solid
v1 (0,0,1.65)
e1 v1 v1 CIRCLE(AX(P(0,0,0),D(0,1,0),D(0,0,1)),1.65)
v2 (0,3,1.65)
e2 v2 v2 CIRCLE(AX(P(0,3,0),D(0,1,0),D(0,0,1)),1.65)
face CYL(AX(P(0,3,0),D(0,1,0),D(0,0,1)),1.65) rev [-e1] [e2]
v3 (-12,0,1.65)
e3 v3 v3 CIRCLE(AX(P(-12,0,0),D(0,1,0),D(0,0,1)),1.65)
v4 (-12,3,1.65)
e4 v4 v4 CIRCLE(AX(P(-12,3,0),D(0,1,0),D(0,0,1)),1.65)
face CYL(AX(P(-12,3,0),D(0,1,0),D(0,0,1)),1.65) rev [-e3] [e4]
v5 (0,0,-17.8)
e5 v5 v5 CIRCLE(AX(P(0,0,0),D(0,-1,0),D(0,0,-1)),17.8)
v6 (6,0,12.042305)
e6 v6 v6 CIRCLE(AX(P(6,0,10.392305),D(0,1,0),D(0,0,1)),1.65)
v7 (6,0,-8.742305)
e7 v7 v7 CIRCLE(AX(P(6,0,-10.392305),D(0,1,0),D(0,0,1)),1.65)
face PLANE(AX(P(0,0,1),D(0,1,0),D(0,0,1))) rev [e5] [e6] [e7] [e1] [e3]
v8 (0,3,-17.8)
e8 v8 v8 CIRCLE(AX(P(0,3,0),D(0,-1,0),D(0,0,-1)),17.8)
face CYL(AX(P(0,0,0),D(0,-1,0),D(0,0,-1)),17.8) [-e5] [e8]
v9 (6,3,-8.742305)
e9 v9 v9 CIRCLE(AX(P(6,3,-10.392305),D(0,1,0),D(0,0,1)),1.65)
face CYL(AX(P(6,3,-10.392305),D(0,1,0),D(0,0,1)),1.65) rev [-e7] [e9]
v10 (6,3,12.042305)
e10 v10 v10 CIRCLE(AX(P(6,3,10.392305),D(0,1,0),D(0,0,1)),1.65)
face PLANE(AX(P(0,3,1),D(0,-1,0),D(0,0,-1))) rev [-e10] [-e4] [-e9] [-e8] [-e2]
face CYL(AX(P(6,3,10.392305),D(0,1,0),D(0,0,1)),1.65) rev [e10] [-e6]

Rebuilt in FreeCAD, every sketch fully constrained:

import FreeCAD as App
import Part
import Sketcher

doc = App.newDocument("Part")
params = doc.addObject("Spreadsheet::Sheet", "Params")
for row, (alias, value) in enumerate([
    ("sketch1_width", "3 mm"),
    ("sketch1_height", "16.8 mm"),
    ("revolution_angle", "360 deg"),
    ("sketch2_diameter", "2 mm"),
    ("sketch3_diameter", "3.3 mm"),
    ("hole_diameter", "3.3 mm"),
], start=1):
    params.set(f"A{row}", alias)
    params.set(f"B{row}", "=" + value)
    params.setAlias(f"B{row}", alias)

body = doc.addObject("PartDesign::Body", "Body")

# Sketch on YZ plane
sketch1 = body.newObject("Sketcher::SketchObject", "Sketch")
sketch1.AttachmentSupport = (doc.getObject("YZ_Plane"), [""])
sketch1.MapMode = "FlatFace"
sketch1.addGeometry([
    Part.LineSegment(App.Vector(3, 17.8, 0), App.Vector(0, 17.8, 0)),
    Part.LineSegment(App.Vector(0, 17.8, 0), App.Vector(0, 1, 0)),
    Part.LineSegment(App.Vector(0, 1, 0), App.Vector(3, 1, 0)),
    Part.LineSegment(App.Vector(3, 1, 0), App.Vector(3, 17.8, 0)),
], False)
sketch1.addConstraint([
    Sketcher.Constraint("Coincident", 0, 2, 1, 1),
    Sketcher.Constraint("Coincident", 1, 2, 2, 1),
    Sketcher.Constraint("Coincident", 2, 2, 3, 1),
    Sketcher.Constraint("Coincident", 3, 2, 0, 1),
    Sketcher.Constraint("Horizontal", 0),
    Sketcher.Constraint("Vertical", 1),
    Sketcher.Constraint("Horizontal", 2),
    Sketcher.Constraint("Vertical", 3),
    Sketcher.Constraint("PointOnObject", 0, 2, -2),
    Sketcher.Constraint("DistanceX", 0, 2, 0, 1, 3.0),
    Sketcher.Constraint("DistanceY", 1, 2, 1, 1, 16.8),
    Sketcher.Constraint("DistanceY", -1, 1, 1, 2, 1.0),
])
sketch1.setExpression("Constraints[9]", "Params.sketch1_width")
sketch1.setExpression("Constraints[10]", "Params.sketch1_height")
revolution = body.newObject("PartDesign::Revolution", "Revolution")
revolution.Profile = sketch1
revolution.ReferenceAxis = (sketch1, ["H_Axis"])
revolution.setExpression("Angle", "Params.revolution_angle")

# Sketch on XZ plane
sketch2 = body.newObject("Sketcher::SketchObject", "Sketch001")
sketch2.AttachmentSupport = (doc.getObject("XZ_Plane"), [""])
sketch2.MapMode = "FlatFace"
sketch2.AttachmentOffset = App.Placement(App.Vector(0, 0, -3), App.Rotation())
sketch2.addGeometry(Part.Circle(App.Vector(-12, 0, 0), App.Vector(0, 0, 1), 1), False)
sketch2.addConstraint([
    Sketcher.Constraint("PointOnObject", 0, 3, -1),
    Sketcher.Constraint("Diameter", 0, 2.0),
    Sketcher.Constraint("DistanceX", 0, 3, -1, 1, 12.0),
])
sketch2.setExpression("Constraints[1]", "Params.sketch2_diameter")
pocket1 = body.newObject("PartDesign::Pocket", "Pocket")
pocket1.Profile = sketch2
pocket1.Type = "ThroughAll"
pocket1.Reversed = True
doc.recompute()

polarpattern = body.newObject("PartDesign::PolarPattern", "PolarPattern")
polarpattern.Originals = [pocket1]
polarpattern.Axis = (doc.getObject("Y_Axis"), [""])
polarpattern.Angle = 360
polarpattern.Occurrences = 3
body.Tip = polarpattern

# Sketch on XZ plane
sketch3 = body.newObject("Sketcher::SketchObject", "Sketch002")
sketch3.AttachmentSupport = (doc.getObject("XZ_Plane"), [""])
sketch3.MapMode = "FlatFace"
sketch3.AttachmentOffset = App.Placement(App.Vector(0, 0, -3), App.Rotation())
sketch3.addGeometry([
    Part.Circle(App.Vector(0, 0, 0), App.Vector(0, 0, 1), 1.6),
    Part.Circle(App.Vector(6, -10.4, 0), App.Vector(0, 0, 1), 1.6),
    Part.Circle(App.Vector(-12, 0, 0), App.Vector(0, 0, 1), 1.6),
    Part.Circle(App.Vector(6, 10.4, 0), App.Vector(0, 0, 1), 1.6),
], False)
sketch3.addConstraint([
    Sketcher.Constraint("Coincident", 0, 3, -1, 1),
    Sketcher.Constraint("Equal", 0, 1),
    Sketcher.Constraint("Equal", 1, 2),
    Sketcher.Constraint("Equal", 2, 3),
    Sketcher.Constraint("Symmetric", 1, 3, 3, 3, -1),
    Sketcher.Constraint("PointOnObject", 2, 3, -1),
    Sketcher.Constraint("Diameter", 0, 3.3),
    Sketcher.Constraint("DistanceX", -1, 1, 1, 3, 6.0),
    Sketcher.Constraint("DistanceX", 2, 3, -1, 1, 12.0),
    Sketcher.Constraint("DistanceY", 1, 3, 3, 3, 20.78461),
])
sketch3.setExpression("Constraints[6]", "Params.sketch3_diameter")
doc.recompute()
hole = body.newObject("PartDesign::Hole", "Hole")
hole.Profile = sketch3
hole.ThreadType = "None"
hole.setExpression("Diameter", "Params.hole_diameter")
hole.DepthType = "ThroughAll"
hole.Reversed = True

doc.recompute()
